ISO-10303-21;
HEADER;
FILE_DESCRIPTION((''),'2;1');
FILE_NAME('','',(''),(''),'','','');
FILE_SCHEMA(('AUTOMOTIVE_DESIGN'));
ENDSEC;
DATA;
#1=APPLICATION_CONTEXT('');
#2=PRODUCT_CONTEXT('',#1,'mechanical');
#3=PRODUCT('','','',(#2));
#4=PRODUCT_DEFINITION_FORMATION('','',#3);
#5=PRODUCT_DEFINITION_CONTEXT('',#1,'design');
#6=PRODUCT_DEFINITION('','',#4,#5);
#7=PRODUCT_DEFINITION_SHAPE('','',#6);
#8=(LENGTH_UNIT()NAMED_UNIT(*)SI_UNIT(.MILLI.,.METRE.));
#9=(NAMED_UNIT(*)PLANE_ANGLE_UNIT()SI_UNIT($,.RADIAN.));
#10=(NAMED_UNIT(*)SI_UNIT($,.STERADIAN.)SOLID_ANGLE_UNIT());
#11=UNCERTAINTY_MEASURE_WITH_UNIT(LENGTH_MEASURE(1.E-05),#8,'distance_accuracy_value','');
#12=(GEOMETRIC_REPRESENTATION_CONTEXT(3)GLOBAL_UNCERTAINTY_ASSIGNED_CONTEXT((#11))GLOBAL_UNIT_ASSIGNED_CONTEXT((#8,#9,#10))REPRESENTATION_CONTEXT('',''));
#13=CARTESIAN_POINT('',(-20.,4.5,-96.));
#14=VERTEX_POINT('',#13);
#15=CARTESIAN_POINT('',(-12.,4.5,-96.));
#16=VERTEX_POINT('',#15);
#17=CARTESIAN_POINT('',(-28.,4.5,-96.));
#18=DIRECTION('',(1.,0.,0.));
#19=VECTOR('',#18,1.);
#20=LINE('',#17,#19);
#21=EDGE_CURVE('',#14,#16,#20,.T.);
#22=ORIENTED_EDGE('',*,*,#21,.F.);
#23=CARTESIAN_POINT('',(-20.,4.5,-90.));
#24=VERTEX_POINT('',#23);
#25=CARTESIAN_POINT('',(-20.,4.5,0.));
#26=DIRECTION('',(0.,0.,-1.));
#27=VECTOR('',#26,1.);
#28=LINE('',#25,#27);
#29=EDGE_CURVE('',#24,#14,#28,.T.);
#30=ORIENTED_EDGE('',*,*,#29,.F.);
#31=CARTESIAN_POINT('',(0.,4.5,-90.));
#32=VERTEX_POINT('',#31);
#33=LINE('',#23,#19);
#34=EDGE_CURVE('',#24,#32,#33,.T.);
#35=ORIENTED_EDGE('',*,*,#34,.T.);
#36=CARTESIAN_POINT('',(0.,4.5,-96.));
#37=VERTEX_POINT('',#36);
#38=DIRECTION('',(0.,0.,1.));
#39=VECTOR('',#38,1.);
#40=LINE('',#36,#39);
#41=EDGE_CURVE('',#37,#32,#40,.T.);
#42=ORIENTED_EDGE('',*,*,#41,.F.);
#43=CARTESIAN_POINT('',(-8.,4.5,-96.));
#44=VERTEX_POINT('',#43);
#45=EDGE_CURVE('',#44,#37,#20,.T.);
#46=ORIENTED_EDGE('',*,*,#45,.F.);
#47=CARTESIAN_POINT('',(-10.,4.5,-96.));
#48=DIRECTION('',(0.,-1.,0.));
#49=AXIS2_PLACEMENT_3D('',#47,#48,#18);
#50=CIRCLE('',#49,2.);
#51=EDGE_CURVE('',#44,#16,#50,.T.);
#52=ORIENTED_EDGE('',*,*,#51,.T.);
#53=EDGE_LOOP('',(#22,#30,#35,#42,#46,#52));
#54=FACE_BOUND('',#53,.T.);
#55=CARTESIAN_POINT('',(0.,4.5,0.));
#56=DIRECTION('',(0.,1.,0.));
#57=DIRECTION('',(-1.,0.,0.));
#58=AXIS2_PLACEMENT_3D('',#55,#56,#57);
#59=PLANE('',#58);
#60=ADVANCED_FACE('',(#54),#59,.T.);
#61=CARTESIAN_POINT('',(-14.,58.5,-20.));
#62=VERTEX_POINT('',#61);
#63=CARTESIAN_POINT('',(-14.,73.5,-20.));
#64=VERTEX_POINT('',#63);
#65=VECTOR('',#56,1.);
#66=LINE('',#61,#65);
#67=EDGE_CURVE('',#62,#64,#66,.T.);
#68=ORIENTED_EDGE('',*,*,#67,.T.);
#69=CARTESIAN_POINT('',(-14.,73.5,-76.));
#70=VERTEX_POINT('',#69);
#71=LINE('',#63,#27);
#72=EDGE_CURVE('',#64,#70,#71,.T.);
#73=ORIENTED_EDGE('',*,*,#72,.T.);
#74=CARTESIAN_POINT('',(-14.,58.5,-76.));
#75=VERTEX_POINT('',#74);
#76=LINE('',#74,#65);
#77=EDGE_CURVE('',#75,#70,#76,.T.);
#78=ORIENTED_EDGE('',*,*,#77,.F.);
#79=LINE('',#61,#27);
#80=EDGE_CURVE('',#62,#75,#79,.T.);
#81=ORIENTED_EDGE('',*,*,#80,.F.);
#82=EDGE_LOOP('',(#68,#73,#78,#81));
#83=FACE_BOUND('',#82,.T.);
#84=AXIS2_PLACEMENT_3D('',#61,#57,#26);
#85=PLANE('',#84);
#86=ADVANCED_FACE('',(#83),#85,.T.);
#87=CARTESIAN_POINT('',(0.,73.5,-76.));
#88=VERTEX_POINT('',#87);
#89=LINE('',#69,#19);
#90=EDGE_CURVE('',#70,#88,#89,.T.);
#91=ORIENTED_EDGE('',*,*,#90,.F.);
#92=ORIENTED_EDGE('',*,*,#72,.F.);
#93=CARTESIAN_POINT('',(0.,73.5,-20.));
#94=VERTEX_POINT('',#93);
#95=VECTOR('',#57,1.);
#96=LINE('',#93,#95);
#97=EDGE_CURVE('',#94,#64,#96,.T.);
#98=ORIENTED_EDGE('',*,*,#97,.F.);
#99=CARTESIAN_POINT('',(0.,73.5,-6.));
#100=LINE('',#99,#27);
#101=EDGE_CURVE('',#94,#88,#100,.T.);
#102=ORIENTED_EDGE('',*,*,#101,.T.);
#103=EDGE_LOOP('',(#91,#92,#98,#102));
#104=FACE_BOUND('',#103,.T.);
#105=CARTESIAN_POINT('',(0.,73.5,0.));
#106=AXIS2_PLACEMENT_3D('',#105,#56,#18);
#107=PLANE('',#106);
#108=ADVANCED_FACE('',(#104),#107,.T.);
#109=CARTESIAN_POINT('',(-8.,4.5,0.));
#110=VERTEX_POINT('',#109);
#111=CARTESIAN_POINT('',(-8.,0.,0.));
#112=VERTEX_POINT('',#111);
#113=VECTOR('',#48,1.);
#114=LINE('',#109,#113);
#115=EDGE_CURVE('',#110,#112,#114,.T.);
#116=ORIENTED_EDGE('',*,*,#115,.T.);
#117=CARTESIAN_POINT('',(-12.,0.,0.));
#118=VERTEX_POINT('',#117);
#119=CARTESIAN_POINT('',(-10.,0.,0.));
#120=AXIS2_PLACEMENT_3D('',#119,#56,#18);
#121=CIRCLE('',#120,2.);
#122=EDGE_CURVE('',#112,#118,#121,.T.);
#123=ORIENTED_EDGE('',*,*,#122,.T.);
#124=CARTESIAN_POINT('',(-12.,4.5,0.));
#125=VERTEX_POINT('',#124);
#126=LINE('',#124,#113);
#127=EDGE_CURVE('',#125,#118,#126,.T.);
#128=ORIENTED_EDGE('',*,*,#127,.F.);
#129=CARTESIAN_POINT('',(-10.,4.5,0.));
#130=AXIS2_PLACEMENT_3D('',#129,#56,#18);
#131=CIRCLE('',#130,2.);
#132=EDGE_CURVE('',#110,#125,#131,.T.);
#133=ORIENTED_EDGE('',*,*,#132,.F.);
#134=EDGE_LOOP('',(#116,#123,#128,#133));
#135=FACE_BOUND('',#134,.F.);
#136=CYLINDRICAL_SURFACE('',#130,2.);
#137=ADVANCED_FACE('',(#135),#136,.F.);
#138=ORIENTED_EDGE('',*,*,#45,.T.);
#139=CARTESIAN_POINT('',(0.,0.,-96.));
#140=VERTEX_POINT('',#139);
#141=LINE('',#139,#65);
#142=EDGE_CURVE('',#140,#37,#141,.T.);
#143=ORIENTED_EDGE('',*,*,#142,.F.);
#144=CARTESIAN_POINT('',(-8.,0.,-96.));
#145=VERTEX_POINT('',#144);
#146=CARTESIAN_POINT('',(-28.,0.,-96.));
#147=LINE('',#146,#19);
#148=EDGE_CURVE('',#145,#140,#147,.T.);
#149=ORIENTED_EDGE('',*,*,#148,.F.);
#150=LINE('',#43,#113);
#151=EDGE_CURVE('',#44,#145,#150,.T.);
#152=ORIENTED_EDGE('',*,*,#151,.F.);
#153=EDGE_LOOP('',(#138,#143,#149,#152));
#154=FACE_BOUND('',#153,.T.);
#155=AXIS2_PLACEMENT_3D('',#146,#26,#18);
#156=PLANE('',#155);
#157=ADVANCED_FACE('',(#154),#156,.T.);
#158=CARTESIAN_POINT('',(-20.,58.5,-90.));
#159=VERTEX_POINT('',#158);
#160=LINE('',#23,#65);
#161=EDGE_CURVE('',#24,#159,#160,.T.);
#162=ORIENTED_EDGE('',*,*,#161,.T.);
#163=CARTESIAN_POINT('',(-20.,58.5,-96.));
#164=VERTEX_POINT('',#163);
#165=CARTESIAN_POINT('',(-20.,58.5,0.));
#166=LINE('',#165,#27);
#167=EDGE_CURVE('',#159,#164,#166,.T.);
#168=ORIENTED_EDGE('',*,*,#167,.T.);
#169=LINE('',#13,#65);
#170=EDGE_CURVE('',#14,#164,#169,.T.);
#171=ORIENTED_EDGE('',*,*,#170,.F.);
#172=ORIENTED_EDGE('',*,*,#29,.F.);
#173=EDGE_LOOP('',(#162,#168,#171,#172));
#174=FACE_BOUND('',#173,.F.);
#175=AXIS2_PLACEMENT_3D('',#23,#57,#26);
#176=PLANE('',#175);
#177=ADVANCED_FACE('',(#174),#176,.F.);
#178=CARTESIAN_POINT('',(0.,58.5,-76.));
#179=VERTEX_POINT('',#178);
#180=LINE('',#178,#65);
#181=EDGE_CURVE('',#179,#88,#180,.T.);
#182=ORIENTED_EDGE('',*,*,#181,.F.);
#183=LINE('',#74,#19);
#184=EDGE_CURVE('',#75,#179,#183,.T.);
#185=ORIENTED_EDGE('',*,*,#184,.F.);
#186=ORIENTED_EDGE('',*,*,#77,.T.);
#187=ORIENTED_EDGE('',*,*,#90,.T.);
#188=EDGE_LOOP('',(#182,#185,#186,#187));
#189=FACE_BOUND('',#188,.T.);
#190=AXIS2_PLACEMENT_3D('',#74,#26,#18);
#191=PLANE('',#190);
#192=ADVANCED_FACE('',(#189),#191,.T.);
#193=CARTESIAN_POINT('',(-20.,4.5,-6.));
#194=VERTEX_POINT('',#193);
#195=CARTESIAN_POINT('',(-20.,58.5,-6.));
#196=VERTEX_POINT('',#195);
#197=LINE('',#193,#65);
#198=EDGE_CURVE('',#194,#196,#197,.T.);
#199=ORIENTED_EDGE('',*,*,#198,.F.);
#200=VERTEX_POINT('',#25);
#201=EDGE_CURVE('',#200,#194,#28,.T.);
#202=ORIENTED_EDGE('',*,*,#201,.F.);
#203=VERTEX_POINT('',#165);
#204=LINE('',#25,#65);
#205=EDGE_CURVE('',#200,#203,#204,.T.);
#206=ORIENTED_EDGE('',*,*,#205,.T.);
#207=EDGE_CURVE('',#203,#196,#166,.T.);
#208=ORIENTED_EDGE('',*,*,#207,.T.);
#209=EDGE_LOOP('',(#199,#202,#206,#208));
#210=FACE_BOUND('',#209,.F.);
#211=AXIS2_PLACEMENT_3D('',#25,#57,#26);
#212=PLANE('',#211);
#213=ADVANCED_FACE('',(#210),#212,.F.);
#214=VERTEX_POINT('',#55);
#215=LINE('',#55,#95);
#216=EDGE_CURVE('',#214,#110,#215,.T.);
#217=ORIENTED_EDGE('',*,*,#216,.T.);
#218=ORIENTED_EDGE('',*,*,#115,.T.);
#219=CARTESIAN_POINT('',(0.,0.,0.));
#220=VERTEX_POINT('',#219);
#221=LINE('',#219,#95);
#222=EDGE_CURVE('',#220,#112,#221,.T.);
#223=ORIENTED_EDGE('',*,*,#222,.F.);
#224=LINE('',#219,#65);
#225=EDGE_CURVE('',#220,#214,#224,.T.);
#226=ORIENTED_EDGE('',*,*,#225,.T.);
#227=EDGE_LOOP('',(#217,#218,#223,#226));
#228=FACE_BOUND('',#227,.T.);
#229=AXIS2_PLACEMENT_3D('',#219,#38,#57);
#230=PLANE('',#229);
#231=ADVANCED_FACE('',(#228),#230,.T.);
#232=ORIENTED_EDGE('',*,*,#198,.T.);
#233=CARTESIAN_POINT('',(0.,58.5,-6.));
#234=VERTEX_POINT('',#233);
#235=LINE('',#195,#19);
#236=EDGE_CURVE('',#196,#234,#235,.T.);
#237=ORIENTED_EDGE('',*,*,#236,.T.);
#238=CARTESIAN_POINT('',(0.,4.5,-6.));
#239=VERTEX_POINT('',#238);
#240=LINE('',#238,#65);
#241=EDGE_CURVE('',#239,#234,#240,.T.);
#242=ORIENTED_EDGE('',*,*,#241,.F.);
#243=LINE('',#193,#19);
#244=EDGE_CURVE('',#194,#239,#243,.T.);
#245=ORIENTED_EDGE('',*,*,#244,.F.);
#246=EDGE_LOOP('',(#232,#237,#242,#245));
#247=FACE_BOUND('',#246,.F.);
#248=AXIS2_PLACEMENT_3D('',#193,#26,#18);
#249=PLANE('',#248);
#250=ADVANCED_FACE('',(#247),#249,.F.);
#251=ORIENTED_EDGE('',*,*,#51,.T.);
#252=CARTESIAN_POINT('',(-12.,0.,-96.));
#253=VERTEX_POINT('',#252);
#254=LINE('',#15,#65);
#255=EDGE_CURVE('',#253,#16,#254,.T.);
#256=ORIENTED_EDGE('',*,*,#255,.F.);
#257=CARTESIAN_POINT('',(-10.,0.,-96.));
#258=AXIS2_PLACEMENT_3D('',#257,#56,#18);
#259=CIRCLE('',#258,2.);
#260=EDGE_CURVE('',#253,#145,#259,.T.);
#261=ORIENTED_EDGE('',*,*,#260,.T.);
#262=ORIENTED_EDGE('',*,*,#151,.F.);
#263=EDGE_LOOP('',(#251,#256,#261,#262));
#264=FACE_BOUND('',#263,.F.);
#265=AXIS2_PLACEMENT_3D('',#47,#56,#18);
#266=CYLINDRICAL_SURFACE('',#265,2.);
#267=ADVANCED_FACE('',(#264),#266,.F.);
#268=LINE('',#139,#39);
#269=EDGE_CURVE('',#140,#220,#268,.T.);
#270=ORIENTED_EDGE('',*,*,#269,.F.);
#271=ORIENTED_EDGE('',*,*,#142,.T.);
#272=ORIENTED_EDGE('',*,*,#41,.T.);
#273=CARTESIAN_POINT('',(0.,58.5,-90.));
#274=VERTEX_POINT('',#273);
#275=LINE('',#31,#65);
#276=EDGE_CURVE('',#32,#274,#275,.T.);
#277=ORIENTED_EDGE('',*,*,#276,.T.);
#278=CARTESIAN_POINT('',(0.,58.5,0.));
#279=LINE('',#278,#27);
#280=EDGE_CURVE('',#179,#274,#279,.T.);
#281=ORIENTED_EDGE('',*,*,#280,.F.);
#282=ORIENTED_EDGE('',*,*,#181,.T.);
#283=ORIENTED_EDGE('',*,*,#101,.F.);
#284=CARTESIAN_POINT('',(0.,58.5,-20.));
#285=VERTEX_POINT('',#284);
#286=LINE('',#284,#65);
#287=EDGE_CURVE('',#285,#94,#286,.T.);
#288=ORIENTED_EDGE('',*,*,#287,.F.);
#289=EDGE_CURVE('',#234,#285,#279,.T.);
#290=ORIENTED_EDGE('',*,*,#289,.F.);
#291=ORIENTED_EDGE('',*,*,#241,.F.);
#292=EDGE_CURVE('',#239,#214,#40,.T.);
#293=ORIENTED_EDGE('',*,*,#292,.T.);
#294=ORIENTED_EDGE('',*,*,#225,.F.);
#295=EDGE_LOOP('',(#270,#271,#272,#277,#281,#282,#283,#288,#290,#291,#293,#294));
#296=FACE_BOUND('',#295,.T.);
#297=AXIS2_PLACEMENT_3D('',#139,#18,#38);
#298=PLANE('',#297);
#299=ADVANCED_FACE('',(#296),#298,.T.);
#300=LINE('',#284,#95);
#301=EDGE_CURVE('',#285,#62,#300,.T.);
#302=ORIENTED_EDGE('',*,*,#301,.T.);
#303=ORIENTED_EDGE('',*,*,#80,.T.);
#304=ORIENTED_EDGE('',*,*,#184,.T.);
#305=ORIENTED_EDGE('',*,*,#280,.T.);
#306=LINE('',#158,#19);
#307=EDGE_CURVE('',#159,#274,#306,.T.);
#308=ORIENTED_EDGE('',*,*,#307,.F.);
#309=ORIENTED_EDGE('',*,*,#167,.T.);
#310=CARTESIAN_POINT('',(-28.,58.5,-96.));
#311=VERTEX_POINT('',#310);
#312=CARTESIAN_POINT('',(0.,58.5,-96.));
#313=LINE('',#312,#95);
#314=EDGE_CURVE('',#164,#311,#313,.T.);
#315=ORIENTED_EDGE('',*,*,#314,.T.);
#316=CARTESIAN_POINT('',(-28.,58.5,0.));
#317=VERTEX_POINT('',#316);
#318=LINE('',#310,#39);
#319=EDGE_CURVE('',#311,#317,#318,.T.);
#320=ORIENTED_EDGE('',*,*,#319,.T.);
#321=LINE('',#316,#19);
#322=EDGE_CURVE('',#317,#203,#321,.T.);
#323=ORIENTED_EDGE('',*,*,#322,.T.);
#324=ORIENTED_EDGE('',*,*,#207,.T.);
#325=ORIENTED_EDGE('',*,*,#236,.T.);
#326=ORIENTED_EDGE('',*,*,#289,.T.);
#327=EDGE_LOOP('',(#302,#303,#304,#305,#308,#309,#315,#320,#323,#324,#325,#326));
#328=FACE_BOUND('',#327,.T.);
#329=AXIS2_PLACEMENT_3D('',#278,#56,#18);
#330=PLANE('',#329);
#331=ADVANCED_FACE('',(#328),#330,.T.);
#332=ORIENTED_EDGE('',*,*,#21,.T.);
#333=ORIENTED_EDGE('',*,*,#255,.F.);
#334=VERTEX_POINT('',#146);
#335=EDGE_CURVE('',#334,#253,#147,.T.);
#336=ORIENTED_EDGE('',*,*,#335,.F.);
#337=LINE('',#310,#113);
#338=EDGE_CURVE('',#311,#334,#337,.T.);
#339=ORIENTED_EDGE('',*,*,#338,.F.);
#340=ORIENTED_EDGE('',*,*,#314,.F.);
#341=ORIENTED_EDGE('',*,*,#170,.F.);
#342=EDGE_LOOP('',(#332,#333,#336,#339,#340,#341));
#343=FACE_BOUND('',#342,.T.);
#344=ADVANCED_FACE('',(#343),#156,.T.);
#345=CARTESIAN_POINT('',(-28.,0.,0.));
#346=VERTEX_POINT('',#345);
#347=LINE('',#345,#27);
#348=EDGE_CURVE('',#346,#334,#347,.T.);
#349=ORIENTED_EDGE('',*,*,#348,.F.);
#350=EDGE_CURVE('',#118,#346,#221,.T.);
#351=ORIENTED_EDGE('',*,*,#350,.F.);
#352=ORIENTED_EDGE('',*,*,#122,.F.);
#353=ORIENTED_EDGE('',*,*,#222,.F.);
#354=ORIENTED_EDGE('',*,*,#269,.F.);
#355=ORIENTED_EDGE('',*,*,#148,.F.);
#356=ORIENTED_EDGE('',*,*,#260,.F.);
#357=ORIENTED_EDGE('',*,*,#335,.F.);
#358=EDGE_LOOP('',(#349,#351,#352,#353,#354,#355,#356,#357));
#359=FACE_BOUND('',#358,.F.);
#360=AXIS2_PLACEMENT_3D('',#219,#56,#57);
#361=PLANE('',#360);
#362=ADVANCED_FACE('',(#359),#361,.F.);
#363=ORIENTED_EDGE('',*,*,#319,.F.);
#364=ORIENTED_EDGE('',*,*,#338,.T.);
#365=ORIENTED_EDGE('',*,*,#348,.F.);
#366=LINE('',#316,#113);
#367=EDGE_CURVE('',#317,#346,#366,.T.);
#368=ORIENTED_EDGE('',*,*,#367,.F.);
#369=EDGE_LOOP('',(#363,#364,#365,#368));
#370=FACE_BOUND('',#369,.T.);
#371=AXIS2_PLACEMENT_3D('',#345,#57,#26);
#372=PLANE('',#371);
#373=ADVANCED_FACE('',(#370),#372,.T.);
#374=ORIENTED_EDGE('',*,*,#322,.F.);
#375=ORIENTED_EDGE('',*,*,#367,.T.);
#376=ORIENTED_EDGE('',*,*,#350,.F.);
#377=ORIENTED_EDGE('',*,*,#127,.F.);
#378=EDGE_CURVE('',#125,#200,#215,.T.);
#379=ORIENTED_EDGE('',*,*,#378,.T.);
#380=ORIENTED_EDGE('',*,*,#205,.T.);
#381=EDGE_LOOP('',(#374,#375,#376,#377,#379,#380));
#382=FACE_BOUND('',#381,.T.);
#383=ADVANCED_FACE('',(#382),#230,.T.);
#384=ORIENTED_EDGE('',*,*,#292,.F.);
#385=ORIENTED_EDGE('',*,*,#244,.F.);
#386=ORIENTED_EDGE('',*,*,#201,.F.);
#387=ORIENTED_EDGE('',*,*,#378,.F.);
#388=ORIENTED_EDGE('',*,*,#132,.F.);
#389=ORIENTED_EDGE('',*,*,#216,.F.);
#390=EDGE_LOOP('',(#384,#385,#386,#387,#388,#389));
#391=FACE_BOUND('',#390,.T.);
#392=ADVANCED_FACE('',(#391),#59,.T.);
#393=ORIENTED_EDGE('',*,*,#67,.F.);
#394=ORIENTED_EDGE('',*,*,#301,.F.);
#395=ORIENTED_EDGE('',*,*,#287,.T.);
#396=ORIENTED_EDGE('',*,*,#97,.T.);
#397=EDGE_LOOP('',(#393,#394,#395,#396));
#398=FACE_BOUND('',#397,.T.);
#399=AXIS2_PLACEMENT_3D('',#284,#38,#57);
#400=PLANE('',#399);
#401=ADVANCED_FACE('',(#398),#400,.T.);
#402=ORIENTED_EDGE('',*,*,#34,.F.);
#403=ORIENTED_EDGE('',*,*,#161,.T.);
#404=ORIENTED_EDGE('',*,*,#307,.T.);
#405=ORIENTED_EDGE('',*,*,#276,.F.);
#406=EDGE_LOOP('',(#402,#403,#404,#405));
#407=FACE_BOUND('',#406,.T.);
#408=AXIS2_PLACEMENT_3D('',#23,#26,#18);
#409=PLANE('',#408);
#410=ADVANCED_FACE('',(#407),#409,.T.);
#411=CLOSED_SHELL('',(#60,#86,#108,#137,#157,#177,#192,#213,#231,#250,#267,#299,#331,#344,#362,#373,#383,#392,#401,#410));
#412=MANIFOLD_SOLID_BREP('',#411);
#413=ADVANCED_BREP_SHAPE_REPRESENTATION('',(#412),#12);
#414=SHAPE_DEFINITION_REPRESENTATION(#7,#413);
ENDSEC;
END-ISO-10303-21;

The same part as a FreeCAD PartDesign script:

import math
import FreeCAD as App
import Part
import Sketcher
Q = App.Units.Quantity


def add_polygon(sketch, points):
    """Adds a closed chain of lines whose ends are joined by coincident constraints."""
    first, n = sketch.GeometryCount, len(points)
    for a, b in zip(points, points[1:] + points[:1]):
        sketch.addGeometry(Part.LineSegment(App.Vector(*a, 0), App.Vector(*b, 0)), False)
    for i in range(n):
        sketch.addConstraint(Sketcher.Constraint("Coincident", first + i, 2, first + (i + 1) % n, 1))

doc = App.newDocument("Part")
body = doc.addObject("PartDesign::Body", "Body")

# Sketch on XZ plane
sketch1 = doc.addObject("Sketcher::SketchObject", "Sketch")
body.addObject(sketch1)
sketch1.AttachmentSupport = (doc.XZ_Plane, [""])
sketch1.MapMode = "FlatFace"
add_polygon(sketch1, [(-28, 0), (0, 0), (0, -96), (-28, -96)])  # lines 0-3
sketch1.addConstraint([
    Sketcher.Constraint("Horizontal", 0),
    Sketcher.Constraint("Vertical", 1),
    Sketcher.Constraint("Horizontal", 2),
    Sketcher.Constraint("Vertical", 3),
    Sketcher.Constraint("Coincident", 0, 2, -1, 1),
    Sketcher.Constraint("DistanceX", 0, 1, 0, 2, Q("28 mm")),
    Sketcher.Constraint("DistanceY", 1, 2, 1, 1, Q("96 mm")),
])
pad1 = doc.addObject("PartDesign::Pad", "Pad")
body.addObject(pad1)
pad1.Profile = sketch1
pad1.Length = 4.5
pad1.Reversed = True

# Sketch on XZ plane
sketch2 = doc.addObject("Sketcher::SketchObject", "Sketch001")
body.addObject(sketch2)
sketch2.AttachmentSupport = (doc.XZ_Plane, [""])
sketch2.MapMode = "FlatFace"
sketch2.AttachmentOffset = App.Placement(App.Vector(0, 0, -4.5), App.Rotation())
add_polygon(sketch2, [(-20, -90), (-20, -96), (-28, -96), (-28, 0), (-20, 0), (-20, -6), (0, -6), (0, -90)])  # lines 0-7
sketch2.addConstraint([
    Sketcher.Constraint("Vertical", 0),
    Sketcher.Constraint("Horizontal", 1),
    Sketcher.Constraint("Vertical", 2),
    Sketcher.Constraint("Horizontal", 3),
    Sketcher.Constraint("Vertical", 4),
    Sketcher.Constraint("Horizontal", 5),
    Sketcher.Constraint("Vertical", 6),
    Sketcher.Constraint("Horizontal", 7),
    Sketcher.Constraint("PointOnObject", 2, 2, -1),
    Sketcher.Constraint("PointOnObject", 5, 2, -2),
    Sketcher.Constraint("Vertical", 0, 2, 3, 2),
    Sketcher.Constraint("Equal", 0, 4),
    Sketcher.Constraint("DistanceX", 1, 2, 1, 1, Q("8 mm")),
    Sketcher.Constraint("DistanceY", 0, 2, 0, 1, Q("6 mm")),
    Sketcher.Constraint("DistanceX", 5, 1, 5, 2, Q("20 mm")),
    Sketcher.Constraint("DistanceY", 2, 1, 2, 2, Q("96 mm")),
])
pad2 = doc.addObject("PartDesign::Pad", "Pad001")
body.addObject(pad2)
pad2.Profile = sketch2
pad2.Length = 54
pad2.Reversed = True

# Sketch on XZ plane
sketch3 = doc.addObject("Sketcher::SketchObject", "Sketch002")
body.addObject(sketch3)
sketch3.AttachmentSupport = (doc.XZ_Plane, [""])
sketch3.MapMode = "FlatFace"
sketch3.AttachmentOffset = App.Placement(App.Vector(0, 0, -4.5), App.Rotation())
sketch3.addGeometry([
    Part.LineSegment(App.Vector(-12, 0, 0), App.Vector(-8, 0, 0)),
    Part.ArcOfCircle(Part.Circle(App.Vector(-10, 0, 0), App.Vector(0, 0, 1), 2), math.radians(180), math.radians(360)),
    Part.Circle(App.Vector(-10, -96, 0), App.Vector(0, 0, 1), 2),
], False)
sketch3.addConstraint([
    Sketcher.Constraint("Coincident", 0, 1, 1, 1),
    Sketcher.Constraint("Coincident", 1, 2, 0, 2),
    Sketcher.Constraint("Horizontal", 0),
    Sketcher.Constraint("Equal", 1, 2),
    Sketcher.Constraint("PointOnObject", 1, 3, -1),
    Sketcher.Constraint("PointOnObject", 0, 1, -1),
    Sketcher.Constraint("Vertical", 1, 3, 2, 3),
    Sketcher.Constraint("Diameter", 2, Q("4 mm")),
    Sketcher.Constraint("DistanceX", 1, 3, -1, 1, Q("10 mm")),
    Sketcher.Constraint("DistanceY", 2, 3, -1, 1, Q("96 mm")),
])
pocket1 = doc.addObject("PartDesign::Pocket", "Pocket")
body.addObject(pocket1)
pocket1.Profile = sketch3
pocket1.Type = "ThroughAll"
pocket1.Reversed = True

# Sketch on XZ plane
sketch4 = doc.addObject("Sketcher::SketchObject", "Sketch003")
body.addObject(sketch4)
sketch4.AttachmentSupport = (doc.XZ_Plane, [""])
sketch4.MapMode = "FlatFace"
sketch4.AttachmentOffset = App.Placement(App.Vector(0, 0, -58.5), App.Rotation())
add_polygon(sketch4, [(-14, -20), (0, -20), (0, -76), (-14, -76)])  # lines 0-3
sketch4.addConstraint([
    Sketcher.Constraint("Horizontal", 0),
    Sketcher.Constraint("Vertical", 1),
    Sketcher.Constraint("Horizontal", 2),
    Sketcher.Constraint("Vertical", 3),
    Sketcher.Constraint("PointOnObject", 0, 2, -2),
    Sketcher.Constraint("DistanceX", 0, 1, 0, 2, Q("14 mm")),
    Sketcher.Constraint("DistanceY", 1, 2, 1, 1, Q("56 mm")),
    Sketcher.Constraint("DistanceY", 0, 2, -1, 1, Q("20 mm")),
])
pad3 = doc.addObject("PartDesign::Pad", "Pad002")
body.addObject(pad3)
pad3.Profile = sketch4
pad3.Length = 15
pad3.Reversed = True

doc.recompute()
